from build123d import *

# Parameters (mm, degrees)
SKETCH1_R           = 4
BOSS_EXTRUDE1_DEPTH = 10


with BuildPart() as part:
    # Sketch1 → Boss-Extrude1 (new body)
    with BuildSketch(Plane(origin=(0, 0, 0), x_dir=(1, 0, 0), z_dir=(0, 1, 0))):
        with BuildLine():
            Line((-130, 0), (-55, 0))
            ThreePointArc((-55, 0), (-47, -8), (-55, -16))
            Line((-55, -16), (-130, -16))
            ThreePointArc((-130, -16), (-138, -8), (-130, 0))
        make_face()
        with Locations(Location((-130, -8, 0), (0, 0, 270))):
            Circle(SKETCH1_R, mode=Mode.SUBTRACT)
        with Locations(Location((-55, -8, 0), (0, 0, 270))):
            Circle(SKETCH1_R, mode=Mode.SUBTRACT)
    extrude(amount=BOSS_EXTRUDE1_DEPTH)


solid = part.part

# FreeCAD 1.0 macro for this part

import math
import FreeCAD as App
import Part
import Sketcher
from FreeCAD import Vector

doc = App.newDocument("Part")
body = doc.addObject("PartDesign::Body", "Body")

# Sketch on XZ plane
sketch1 = doc.addObject("Sketcher::SketchObject", "Sketch")
body.addObject(sketch1)
sketch1.AttachmentSupport = (doc.XZ_Plane, [""])
sketch1.MapMode = "FlatFace"
sketch1.addGeometry(Part.LineSegment(Vector(-55, 0, 0), Vector(-130, 0, 0)), False)
sketch1.addGeometry(Part.ArcOfCircle(Part.Circle(Vector(-130, 8, 0), Vector(0, 0, 1), 8), math.radians(90), math.radians(270)), False)
sketch1.addGeometry(Part.LineSegment(Vector(-130, 16, 0), Vector(-55, 16, 0)), False)
sketch1.addGeometry(Part.ArcOfCircle(Part.Circle(Vector(-55, 8, 0), Vector(0, 0, 1), 8), math.radians(-90), math.radians(90)), False)
sketch1.addGeometry(Part.Circle(Vector(-55, 8, 0), Vector(0, 0, 1), 4), False)
sketch1.addGeometry(Part.Circle(Vector(-130, 8, 0), Vector(0, 0, 1), 4), False)
sketch1.addConstraint(Sketcher.Constraint("Tangent", 0, 2, 1, 2))
sketch1.addConstraint(Sketcher.Constraint("Tangent", 1, 1, 2, 1))
sketch1.addConstraint(Sketcher.Constraint("Tangent", 2, 2, 3, 2))
sketch1.addConstraint(Sketcher.Constraint("Tangent", 3, 1, 0, 1))
sketch1.addConstraint(Sketcher.Constraint("Horizontal", 0))
sketch1.addConstraint(Sketcher.Constraint("Horizontal", 2))
sketch1.addConstraint(Sketcher.Constraint("Coincident", 4, 3, 3, 3))
sketch1.addConstraint(Sketcher.Constraint("Coincident", 5, 3, 1, 3))
sketch1.addConstraint(Sketcher.Constraint("Equal", 4, 5))
sketch1.addConstraint(Sketcher.Constraint("PointOnObject", 0, 2, -1))
sketch1.addConstraint(Sketcher.Constraint("Diameter", 4, 8.0))
sketch1.addConstraint(Sketcher.Constraint("Radius", 1, 8.0))
sketch1.addConstraint(Sketcher.Constraint("DistanceX", 0, 2, 0, 1, 75.0))
sketch1.addConstraint(Sketcher.Constraint("DistanceX", 1, 3, -1, 1, 130.0))
pad1 = doc.addObject("PartDesign::Pad", "Pad")
body.addObject(pad1)
pad1.Profile = sketch1
pad1.Length = 10
pad1.Reversed = True

doc.recompute()
